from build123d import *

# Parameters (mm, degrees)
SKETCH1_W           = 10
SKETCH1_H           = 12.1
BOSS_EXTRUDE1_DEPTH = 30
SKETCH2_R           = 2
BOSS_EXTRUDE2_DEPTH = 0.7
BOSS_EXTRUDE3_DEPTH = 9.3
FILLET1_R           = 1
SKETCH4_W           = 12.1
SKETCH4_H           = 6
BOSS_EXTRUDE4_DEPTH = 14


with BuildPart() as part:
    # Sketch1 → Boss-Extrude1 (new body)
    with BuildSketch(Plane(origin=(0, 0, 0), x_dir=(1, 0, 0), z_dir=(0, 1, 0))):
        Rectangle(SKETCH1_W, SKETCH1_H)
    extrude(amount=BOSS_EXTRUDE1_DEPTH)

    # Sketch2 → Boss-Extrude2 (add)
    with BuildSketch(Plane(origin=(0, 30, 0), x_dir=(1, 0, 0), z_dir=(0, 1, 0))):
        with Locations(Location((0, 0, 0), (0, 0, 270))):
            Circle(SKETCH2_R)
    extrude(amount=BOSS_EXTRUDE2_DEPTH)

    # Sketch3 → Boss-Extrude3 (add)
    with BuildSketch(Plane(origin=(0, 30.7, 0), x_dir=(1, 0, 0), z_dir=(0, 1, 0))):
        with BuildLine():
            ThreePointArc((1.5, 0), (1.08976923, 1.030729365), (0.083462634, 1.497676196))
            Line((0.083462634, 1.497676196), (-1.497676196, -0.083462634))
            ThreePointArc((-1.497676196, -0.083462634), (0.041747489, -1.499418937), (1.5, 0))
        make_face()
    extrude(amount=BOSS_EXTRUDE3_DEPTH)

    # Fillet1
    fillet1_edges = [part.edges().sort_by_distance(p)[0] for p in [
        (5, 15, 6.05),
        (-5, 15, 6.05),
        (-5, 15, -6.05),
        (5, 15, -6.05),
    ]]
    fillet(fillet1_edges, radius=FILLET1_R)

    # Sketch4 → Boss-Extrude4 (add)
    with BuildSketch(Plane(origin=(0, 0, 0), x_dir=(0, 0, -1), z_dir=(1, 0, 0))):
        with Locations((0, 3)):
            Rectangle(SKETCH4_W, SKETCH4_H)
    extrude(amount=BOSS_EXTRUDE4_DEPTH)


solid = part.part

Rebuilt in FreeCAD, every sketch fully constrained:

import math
import FreeCAD as App
import Part
import Sketcher

V = App.Vector
Q = App.Units.Quantity


def edges_at(feature, points):
    """Names of the edges that pass closest to the given points."""
    edges = feature.Shape.Edges
    near = lambda p: min(range(len(edges)), key=lambda i: edges[i].distToShape(Part.Vertex(*p))[0])
    return sorted({f"Edge{near(p) + 1}" for p in points})


def add_polygon(sketch, points):
    """Adds a closed chain of lines whose ends are joined by coincident constraints."""
    first, n = sketch.GeometryCount, len(points)
    for a, b in zip(points, points[1:] + points[:1]):
        sketch.addGeometry(Part.LineSegment(App.Vector(*a, 0), App.Vector(*b, 0)), False)
    for i in range(n):
        sketch.addConstraint(Sketcher.Constraint("Coincident", first + i, 2, first + (i + 1) % n, 1))

doc = App.newDocument("Part")
body = doc.addObject("PartDesign::Body", "Body")

# Sketch on XZ plane
sketch1 = body.newObject("Sketcher::SketchObject", "Sketch")
sketch1.AttachmentSupport = (doc.getObject("XZ_Plane"), [""])
sketch1.MapMode = "FlatFace"
add_polygon(sketch1, [(-5, -6), (-5, 6), (5, 6), (5, -6)])  # lines 0-3
sketch1.addConstraint([
    Sketcher.Constraint("Vertical", 0),
    Sketcher.Constraint("Horizontal", 1),
    Sketcher.Constraint("Vertical", 2),
    Sketcher.Constraint("Horizontal", 3),
    Sketcher.Constraint("Symmetric", 0, 2, 2, 2, -1, 1),
    Sketcher.Constraint("DistanceX", 1, 1, 1, 2, 10.0),
    Sketcher.Constraint("DistanceY", 0, 1, 0, 2, 12.1),
])
pad1 = body.newObject("PartDesign::Pad", "Pad")
pad1.Profile = sketch1
pad1.Length = 30
pad1.Reversed = True

# Sketch on XZ plane
sketch2 = body.newObject("Sketcher::SketchObject", "Sketch001")
sketch2.AttachmentSupport = (doc.getObject("XZ_Plane"), [""])
sketch2.MapMode = "FlatFace"
sketch2.AttachmentOffset = App.Placement(V(0, 0, -30), App.Rotation())
sketch2.addGeometry(Part.Circle(V(0, 0, 0), V(0, 0, 1), 2), False)
sketch2.addConstraint([
    Sketcher.Constraint("Coincident", 0, 3, -1, 1),
    Sketcher.Constraint("Diameter", 0, 4.0),
])
pad2 = body.newObject("PartDesign::Pad", "Pad001")
pad2.Profile = sketch2
pad2.Length = 0.7
pad2.Reversed = True

# Sketch on XZ plane
sketch3 = body.newObject("Sketcher::SketchObject", "Sketch002")
sketch3.AttachmentSupport = (doc.getObject("XZ_Plane"), [""])
sketch3.MapMode = "FlatFace"
sketch3.AttachmentOffset = App.Placement(V(0, 0, -30.7), App.Rotation())
sketch3.addGeometry([
    Part.ArcOfCircle(Part.Circle(V(0, 0, 0), V(0, 0, 1), 1.5), math.radians(-87), math.radians(0)),
    Part.LineSegment(V(0.1, -1.5, 0), V(-1.5, 0.1, 0)),
    Part.ArcOfCircle(Part.Circle(V(0, 0, 0), V(0, 0, 1), 1.5), math.radians(0), math.radians(177)),
], False)
sketch3.addConstraint([
    Sketcher.Constraint("Coincident", 0, 1, 1, 1),
    Sketcher.Constraint("Coincident", 1, 2, 2, 2),
    Sketcher.Constraint("Tangent", 2, 1, 0, 2),
    Sketcher.Constraint("Coincident", 0, 3, -1, 1),
    Sketcher.Constraint("Equal", 0, 2),
    Sketcher.Constraint("PointOnObject", 2, 1, -1),
    Sketcher.Constraint("Radius", 0, 1.5),
    Sketcher.Constraint("Angle", 1, Q("135 deg")),
    Sketcher.Constraint("DistanceX", 1, 2, 0, 1, 1.581139),
])
pad3 = body.newObject("PartDesign::Pad", "Pad002")
pad3.Profile = sketch3
pad3.Length = 9.3
pad3.Reversed = True
doc.recompute()

fillet = body.newObject("PartDesign::Fillet", "Fillet")
fillet.Base = (pad3, edges_at(pad3, [
    (5, 15, 6.05),
    (-5, 15, 6.05),
    (-5, 15, -6.05),
    (5, 15, -6.05),
]))
fillet.Radius = 1

# Sketch on YZ plane
sketch4 = body.newObject("Sketcher::SketchObject", "Sketch003")
sketch4.AttachmentSupport = (doc.getObject("YZ_Plane"), [""])
sketch4.MapMode = "FlatFace"
add_polygon(sketch4, [(6, 6), (0, 6), (0, -6), (6, -6)])  # lines 0-3
sketch4.addConstraint([
    Sketcher.Constraint("Horizontal", 0),
    Sketcher.Constraint("Vertical", 1),
    Sketcher.Constraint("Horizontal", 2),
    Sketcher.Constraint("Vertical", 3),
    Sketcher.Constraint("Symmetric", 0, 2, 1, 2, -1, 1),
    Sketcher.Constraint("DistanceX", 0, 2, 0, 1, 6.0),
    Sketcher.Constraint("DistanceY", 1, 2, 1, 1, 12.1),
])
pad4 = body.newObject("PartDesign::Pad", "Pad003")
pad4.Profile = sketch4
pad4.Length = 14

doc.recompute()
